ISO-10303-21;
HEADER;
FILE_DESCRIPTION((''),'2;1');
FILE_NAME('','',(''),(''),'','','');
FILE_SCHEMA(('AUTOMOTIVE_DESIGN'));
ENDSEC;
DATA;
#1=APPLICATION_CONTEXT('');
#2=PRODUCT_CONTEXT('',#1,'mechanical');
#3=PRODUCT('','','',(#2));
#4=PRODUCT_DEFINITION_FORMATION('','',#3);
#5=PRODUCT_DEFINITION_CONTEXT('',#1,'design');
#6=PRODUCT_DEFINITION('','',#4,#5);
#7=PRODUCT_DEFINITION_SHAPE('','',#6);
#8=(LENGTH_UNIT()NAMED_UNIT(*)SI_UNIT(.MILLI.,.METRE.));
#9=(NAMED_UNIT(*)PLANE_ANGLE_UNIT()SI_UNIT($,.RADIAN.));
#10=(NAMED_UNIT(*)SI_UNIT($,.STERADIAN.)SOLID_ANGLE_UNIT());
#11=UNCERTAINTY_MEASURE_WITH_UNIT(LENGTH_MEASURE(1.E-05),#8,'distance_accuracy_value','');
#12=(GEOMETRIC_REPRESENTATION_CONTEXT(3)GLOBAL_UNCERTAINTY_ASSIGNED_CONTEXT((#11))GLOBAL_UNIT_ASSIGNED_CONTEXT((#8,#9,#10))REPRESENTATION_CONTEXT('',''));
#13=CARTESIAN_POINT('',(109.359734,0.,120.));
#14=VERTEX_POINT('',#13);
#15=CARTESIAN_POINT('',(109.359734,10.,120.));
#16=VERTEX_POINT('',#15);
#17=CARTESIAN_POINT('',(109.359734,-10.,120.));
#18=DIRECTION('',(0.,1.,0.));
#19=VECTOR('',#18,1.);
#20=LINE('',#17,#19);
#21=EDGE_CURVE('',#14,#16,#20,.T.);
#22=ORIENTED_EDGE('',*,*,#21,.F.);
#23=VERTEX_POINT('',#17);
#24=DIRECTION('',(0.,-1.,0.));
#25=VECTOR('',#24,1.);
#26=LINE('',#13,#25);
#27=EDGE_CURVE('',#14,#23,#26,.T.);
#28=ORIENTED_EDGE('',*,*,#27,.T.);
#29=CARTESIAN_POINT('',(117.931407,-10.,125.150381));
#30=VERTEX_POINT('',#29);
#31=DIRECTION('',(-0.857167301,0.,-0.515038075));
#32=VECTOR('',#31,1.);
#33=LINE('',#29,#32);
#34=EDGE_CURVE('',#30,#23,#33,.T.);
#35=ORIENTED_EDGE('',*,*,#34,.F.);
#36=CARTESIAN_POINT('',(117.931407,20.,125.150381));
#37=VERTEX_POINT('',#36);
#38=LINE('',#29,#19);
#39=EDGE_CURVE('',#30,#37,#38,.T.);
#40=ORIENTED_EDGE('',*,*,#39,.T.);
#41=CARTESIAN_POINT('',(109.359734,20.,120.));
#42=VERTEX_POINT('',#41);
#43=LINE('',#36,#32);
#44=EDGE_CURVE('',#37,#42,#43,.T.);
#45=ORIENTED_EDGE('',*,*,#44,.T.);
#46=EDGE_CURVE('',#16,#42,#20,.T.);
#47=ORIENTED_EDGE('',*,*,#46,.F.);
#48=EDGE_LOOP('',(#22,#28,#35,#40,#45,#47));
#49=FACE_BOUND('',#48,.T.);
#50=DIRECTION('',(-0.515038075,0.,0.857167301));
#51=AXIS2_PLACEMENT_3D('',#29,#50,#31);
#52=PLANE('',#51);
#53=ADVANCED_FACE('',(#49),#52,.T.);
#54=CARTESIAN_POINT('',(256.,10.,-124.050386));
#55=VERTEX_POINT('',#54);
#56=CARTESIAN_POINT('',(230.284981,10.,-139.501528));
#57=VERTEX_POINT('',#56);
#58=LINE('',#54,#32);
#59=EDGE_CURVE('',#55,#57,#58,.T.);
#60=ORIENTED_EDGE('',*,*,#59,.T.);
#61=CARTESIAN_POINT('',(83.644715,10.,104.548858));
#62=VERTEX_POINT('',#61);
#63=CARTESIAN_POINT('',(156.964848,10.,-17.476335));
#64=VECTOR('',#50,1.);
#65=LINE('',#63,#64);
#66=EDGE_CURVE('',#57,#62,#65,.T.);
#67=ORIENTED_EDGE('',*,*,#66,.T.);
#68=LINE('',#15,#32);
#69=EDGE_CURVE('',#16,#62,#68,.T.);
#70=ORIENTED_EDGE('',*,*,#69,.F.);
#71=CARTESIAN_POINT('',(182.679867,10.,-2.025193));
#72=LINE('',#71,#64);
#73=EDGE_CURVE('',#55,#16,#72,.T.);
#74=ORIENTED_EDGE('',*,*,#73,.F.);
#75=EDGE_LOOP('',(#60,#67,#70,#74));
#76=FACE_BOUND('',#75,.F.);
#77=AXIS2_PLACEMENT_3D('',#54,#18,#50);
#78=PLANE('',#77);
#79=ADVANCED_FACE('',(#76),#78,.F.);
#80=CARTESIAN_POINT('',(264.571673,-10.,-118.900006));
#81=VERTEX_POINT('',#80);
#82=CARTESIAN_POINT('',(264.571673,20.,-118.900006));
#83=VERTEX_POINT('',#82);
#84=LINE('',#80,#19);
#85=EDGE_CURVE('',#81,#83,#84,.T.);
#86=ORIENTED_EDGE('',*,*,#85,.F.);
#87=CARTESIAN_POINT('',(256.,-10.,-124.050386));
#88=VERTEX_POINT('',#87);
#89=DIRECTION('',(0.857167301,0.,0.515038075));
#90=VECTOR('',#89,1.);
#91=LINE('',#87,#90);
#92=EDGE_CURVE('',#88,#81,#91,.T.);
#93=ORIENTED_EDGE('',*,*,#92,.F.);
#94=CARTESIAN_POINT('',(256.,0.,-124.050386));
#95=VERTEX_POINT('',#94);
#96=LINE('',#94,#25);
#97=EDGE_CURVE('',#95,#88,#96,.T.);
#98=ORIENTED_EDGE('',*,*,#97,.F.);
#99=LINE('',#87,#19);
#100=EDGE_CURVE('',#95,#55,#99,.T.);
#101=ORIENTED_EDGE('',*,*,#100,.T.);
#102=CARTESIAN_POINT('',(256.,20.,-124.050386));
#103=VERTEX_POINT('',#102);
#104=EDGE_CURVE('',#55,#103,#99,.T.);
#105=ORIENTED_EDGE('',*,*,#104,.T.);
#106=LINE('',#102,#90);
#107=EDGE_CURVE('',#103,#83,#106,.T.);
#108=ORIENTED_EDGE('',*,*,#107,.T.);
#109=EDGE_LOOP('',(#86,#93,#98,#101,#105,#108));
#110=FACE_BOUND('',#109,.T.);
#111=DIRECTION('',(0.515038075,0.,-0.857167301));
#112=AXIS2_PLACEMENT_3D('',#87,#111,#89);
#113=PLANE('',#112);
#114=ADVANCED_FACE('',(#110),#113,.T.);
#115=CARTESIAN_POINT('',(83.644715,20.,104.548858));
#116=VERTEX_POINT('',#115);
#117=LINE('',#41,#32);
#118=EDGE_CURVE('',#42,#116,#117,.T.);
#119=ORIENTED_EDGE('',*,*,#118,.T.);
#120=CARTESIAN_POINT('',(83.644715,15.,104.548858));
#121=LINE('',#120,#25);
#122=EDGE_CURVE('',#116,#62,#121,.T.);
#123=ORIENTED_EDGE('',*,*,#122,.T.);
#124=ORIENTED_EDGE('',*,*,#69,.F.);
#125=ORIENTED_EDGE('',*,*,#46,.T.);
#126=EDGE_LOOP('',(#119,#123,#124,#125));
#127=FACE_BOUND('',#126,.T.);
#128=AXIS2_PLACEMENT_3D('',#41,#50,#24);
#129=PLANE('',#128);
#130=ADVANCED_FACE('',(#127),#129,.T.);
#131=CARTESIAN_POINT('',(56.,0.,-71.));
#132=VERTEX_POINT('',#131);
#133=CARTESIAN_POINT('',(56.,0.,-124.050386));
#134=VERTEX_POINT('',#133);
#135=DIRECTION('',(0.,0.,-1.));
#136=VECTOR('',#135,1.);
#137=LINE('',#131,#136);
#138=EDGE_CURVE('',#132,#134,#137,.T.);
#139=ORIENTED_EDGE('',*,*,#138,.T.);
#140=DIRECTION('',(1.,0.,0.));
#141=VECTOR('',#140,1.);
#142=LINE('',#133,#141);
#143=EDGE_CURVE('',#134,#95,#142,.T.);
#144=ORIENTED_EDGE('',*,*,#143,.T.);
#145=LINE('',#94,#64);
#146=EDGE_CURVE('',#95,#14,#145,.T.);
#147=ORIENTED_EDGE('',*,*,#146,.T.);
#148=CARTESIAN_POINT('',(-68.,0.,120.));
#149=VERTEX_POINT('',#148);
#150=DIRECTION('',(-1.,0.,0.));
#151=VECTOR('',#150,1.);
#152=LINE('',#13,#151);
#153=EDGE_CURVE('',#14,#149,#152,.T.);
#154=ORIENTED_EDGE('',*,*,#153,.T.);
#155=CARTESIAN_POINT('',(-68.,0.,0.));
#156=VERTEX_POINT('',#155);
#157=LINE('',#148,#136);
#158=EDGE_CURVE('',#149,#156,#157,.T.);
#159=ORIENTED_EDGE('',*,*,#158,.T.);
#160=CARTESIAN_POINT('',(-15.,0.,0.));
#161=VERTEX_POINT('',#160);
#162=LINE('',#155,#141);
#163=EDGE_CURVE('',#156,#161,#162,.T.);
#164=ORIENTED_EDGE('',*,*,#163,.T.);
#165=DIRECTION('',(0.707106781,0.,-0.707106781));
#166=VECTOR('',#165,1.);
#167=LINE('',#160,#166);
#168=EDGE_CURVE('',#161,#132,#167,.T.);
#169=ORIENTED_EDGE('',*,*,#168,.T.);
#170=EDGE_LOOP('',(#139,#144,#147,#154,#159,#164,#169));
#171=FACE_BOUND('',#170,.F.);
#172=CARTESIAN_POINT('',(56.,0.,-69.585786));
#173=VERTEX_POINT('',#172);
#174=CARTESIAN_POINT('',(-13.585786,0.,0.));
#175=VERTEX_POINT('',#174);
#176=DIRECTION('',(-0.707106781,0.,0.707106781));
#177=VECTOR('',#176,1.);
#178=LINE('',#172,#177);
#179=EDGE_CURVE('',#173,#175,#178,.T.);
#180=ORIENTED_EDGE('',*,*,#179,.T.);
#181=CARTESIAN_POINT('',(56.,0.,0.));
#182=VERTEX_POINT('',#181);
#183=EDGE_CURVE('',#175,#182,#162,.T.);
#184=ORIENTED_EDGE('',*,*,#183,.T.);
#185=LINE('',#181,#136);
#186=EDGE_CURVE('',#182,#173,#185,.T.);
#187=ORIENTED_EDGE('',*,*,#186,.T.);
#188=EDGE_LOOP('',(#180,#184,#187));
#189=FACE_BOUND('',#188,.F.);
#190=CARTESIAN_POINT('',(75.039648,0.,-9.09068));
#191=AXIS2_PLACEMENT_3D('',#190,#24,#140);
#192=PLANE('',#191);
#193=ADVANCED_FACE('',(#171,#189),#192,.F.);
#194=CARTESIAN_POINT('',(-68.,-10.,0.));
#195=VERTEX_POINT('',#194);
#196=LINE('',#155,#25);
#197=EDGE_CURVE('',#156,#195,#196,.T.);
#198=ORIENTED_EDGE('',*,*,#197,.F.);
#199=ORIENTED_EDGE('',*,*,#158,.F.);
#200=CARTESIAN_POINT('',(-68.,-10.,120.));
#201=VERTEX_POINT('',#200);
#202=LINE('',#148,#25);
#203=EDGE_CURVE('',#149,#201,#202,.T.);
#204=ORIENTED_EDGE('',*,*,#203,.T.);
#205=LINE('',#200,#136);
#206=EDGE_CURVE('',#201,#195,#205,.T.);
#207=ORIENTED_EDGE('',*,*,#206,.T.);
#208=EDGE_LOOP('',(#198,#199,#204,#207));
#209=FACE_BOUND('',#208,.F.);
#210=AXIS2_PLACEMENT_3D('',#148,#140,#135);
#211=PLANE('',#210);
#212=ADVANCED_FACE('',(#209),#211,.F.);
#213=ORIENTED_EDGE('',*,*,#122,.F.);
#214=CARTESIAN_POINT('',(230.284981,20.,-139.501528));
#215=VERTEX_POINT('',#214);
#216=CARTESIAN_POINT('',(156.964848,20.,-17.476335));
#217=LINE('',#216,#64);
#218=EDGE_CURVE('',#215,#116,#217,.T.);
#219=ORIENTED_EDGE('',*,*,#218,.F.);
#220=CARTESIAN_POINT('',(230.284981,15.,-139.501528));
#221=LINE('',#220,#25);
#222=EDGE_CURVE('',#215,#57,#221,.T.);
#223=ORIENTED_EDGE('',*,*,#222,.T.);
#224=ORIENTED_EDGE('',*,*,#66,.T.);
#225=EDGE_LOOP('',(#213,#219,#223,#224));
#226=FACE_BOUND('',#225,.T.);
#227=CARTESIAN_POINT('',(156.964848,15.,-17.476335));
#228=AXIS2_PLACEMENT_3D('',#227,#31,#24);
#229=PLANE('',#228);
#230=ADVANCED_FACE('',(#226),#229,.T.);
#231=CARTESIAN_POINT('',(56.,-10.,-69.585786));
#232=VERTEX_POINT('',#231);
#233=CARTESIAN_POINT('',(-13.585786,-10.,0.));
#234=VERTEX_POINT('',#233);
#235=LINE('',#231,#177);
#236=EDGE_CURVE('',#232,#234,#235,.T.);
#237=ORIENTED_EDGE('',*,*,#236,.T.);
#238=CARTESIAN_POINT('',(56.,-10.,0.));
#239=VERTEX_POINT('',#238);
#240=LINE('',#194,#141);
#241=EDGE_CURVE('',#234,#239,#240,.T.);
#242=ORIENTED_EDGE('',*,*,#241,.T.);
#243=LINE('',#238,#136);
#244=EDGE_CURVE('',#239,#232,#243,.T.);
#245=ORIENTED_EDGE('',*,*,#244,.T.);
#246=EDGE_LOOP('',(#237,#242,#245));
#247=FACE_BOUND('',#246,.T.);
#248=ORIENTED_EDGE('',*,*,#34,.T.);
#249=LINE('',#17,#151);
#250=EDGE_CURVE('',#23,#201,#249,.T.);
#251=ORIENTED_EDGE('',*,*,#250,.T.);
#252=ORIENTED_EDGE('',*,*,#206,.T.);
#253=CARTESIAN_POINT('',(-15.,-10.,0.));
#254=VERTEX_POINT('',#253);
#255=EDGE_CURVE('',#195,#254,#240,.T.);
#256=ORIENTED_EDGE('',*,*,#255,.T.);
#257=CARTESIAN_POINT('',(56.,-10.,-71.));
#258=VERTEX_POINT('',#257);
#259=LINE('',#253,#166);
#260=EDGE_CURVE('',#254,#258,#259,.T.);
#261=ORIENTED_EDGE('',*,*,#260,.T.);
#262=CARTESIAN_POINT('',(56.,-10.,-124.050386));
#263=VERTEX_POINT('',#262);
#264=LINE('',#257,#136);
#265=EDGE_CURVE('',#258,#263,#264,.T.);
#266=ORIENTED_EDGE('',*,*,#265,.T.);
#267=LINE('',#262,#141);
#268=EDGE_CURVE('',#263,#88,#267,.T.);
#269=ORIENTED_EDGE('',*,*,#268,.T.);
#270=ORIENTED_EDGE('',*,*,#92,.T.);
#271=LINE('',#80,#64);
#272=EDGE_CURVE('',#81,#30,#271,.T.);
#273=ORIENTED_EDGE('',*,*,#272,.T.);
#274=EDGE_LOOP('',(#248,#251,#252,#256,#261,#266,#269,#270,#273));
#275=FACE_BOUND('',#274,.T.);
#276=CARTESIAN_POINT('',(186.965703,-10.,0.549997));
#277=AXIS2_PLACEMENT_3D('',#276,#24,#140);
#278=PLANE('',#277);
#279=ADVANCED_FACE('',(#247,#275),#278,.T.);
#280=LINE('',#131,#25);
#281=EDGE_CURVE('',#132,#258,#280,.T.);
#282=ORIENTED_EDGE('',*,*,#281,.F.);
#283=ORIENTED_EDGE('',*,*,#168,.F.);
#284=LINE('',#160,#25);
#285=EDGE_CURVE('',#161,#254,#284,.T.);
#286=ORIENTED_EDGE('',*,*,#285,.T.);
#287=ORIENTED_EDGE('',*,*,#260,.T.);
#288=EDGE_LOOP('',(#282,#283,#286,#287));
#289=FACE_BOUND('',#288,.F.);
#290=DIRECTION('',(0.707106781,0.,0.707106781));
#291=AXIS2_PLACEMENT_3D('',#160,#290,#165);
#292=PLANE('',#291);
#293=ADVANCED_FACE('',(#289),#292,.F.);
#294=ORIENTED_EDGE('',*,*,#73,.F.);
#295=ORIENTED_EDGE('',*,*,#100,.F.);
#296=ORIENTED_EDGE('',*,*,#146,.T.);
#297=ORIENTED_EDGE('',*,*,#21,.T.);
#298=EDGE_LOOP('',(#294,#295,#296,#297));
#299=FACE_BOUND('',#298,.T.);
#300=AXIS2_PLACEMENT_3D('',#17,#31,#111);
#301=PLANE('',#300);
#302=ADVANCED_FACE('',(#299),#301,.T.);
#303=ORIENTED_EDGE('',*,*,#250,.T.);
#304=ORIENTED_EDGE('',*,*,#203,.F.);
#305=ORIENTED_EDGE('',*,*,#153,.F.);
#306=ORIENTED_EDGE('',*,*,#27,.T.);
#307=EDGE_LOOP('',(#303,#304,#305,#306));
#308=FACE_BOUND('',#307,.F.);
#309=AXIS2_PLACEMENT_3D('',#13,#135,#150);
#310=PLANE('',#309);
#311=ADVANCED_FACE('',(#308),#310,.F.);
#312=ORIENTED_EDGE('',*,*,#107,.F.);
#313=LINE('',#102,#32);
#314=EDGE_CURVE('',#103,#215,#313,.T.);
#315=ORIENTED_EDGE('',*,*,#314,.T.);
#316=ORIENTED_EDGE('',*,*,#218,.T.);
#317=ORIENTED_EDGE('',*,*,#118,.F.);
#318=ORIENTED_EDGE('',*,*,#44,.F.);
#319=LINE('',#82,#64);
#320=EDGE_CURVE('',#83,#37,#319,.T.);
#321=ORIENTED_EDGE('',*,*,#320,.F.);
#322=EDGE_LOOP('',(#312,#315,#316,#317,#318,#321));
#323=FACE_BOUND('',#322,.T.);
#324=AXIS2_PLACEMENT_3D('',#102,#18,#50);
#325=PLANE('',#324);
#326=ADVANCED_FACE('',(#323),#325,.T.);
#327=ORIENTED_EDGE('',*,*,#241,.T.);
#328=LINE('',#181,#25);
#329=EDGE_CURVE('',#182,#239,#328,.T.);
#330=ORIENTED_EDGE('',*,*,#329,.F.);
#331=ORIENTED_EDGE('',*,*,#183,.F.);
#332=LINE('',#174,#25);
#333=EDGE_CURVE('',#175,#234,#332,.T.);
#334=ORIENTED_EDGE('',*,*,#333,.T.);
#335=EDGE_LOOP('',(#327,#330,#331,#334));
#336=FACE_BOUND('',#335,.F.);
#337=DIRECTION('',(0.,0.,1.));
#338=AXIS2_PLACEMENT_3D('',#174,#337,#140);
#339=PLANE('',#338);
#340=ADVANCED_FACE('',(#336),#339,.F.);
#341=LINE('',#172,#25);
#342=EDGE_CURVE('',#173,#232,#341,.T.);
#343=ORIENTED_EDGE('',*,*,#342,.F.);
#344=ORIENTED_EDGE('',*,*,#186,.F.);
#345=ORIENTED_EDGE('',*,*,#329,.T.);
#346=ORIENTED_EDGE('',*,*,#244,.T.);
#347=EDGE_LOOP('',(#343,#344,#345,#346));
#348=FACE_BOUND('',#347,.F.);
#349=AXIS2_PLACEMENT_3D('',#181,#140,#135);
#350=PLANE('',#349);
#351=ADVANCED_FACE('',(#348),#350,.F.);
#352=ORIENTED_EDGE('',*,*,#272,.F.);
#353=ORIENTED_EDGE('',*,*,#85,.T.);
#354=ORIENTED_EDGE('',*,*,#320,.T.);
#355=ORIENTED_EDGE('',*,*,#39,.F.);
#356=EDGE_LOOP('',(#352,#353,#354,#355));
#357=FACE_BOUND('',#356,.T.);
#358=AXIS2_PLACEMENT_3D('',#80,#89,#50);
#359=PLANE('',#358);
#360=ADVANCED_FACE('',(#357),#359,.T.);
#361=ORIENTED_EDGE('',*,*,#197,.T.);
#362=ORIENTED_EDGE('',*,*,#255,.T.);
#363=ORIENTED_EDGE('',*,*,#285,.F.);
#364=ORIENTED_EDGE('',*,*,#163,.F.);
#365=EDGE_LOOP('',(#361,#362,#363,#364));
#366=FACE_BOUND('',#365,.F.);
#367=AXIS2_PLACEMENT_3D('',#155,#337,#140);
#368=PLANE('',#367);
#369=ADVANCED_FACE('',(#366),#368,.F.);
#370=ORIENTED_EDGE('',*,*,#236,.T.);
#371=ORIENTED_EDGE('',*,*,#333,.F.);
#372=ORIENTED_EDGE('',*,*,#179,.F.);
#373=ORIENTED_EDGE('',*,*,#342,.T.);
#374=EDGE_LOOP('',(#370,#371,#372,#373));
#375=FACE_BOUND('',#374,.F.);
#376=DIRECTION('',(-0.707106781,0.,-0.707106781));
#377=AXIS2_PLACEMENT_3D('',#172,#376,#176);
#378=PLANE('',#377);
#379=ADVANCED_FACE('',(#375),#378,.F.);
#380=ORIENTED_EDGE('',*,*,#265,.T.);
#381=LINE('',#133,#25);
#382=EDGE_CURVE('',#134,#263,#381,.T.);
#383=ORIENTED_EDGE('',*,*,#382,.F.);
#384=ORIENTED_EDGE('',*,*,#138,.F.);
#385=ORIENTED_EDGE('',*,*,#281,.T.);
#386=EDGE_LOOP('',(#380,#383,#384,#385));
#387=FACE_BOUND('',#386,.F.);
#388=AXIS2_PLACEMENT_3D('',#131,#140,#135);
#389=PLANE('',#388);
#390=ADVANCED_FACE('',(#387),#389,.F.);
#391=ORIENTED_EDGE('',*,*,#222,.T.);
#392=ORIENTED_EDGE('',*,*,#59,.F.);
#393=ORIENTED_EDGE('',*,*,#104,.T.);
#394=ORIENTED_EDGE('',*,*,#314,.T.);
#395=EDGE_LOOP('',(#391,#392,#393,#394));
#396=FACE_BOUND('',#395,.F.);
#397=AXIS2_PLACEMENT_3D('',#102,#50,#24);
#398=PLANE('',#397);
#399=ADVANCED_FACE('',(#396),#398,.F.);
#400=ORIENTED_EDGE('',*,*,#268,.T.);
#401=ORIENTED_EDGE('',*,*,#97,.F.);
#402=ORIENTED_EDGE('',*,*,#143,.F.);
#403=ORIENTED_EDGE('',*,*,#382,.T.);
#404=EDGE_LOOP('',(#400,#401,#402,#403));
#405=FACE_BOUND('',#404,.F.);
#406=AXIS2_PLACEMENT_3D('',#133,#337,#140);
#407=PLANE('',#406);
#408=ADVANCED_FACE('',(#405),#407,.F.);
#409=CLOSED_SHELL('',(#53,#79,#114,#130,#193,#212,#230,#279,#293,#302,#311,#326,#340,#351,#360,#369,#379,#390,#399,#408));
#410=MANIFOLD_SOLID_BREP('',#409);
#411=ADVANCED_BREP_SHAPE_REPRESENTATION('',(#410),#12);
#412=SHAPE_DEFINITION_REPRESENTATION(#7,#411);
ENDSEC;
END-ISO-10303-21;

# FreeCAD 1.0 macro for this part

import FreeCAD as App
import Part
import Sketcher
Q = App.Units.Quantity

doc = App.newDocument("Part")
body = doc.addObject("PartDesign::Body", "Body")

# Sketch on XZ plane
sketch1 = doc.addObject("Sketcher::SketchObject", "Sketch")
body.addObject(sketch1)
sketch1.AttachmentSupport = (doc.XZ_Plane, [""])
sketch1.MapMode = "FlatFace"
sketch1.addGeometry([
    Part.LineSegment(App.Vector(-15, 0, 0), App.Vector(56, -71, 0)),  # 0
    Part.LineSegment(App.Vector(56, -71, 0), App.Vector(56, -124, 0)),  # 1
    Part.LineSegment(App.Vector(56, -124, 0), App.Vector(256, -124, 0)),  # 2
    Part.LineSegment(App.Vector(256, -124, 0), App.Vector(109, 120, 0)),  # 3
    Part.LineSegment(App.Vector(109, 120, 0), App.Vector(-68, 120, 0)),  # 4
    Part.LineSegment(App.Vector(-68, 120, 0), App.Vector(-68, 0, 0)),  # 5
    Part.LineSegment(App.Vector(-68, 0, 0), App.Vector(-15, 0, 0)),  # 6
    Part.LineSegment(App.Vector(56, -70, 0), App.Vector(-14, 0, 0)),  # 7
    Part.LineSegment(App.Vector(-14, 0, 0), App.Vector(56, 0, 0)),  # 8
    Part.LineSegment(App.Vector(56, 0, 0), App.Vector(56, -70, 0)),  # 9
], False)
sketch1.addConstraint([
    Sketcher.Constraint("Coincident", 0, 2, 1, 1),
    Sketcher.Constraint("Coincident", 1, 2, 2, 1),
    Sketcher.Constraint("Coincident", 2, 2, 3, 1),
    Sketcher.Constraint("Coincident", 3, 2, 4, 1),
    Sketcher.Constraint("Coincident", 4, 2, 5, 1),
    Sketcher.Constraint("Coincident", 5, 2, 6, 1),
    Sketcher.Constraint("Coincident", 6, 2, 0, 1),
    Sketcher.Constraint("Coincident", 7, 2, 8, 1),
    Sketcher.Constraint("Coincident", 8, 2, 9, 1),
    Sketcher.Constraint("Coincident", 9, 2, 7, 1),
    Sketcher.Constraint("Vertical", 1),
    Sketcher.Constraint("Horizontal", 2),
    Sketcher.Constraint("Horizontal", 4),
    Sketcher.Constraint("Vertical", 5),
    Sketcher.Constraint("Horizontal", 6),
    Sketcher.Constraint("Horizontal", 8),
    Sketcher.Constraint("Vertical", 9),
    Sketcher.Constraint("PointOnObject", 5, 2, -1),
    Sketcher.Constraint("PointOnObject", 7, 2, -1),
    Sketcher.Constraint("Parallel", 0, 7),
    Sketcher.Constraint("Vertical", 1, 2, 8, 2),
    Sketcher.Constraint("Equal", 8, 9),
    Sketcher.Constraint("DistanceX", 2, 1, 2, 2, 200.0),
    Sketcher.Constraint("DistanceX", 6, 1, 6, 2, 53.0),
    Sketcher.Constraint("DistanceY", 5, 2, 5, 1, 120.0),
    Sketcher.Constraint("Angle", 3, Q("121 deg")),
    Sketcher.Constraint("DistanceX", -1, 1, 0, 2, 56.0),
    Sketcher.Constraint("DistanceY", 0, 2, -1, 1, 71.0),
    Sketcher.Constraint("DistanceY", 1, 2, 9, 2, 54.4646),
    Sketcher.Constraint("Distance", 3, 284.717331),
])
pad1 = doc.addObject("PartDesign::Pad", "Pad")
body.addObject(pad1)
pad1.Profile = sketch1
pad1.Length = 10

# Sketch on XZ plane
sketch2 = doc.addObject("Sketcher::SketchObject", "Sketch001")
body.addObject(sketch2)
sketch2.AttachmentSupport = (doc.XZ_Plane, [""])
sketch2.MapMode = "FlatFace"
sketch2.AttachmentOffset = App.Placement(App.Vector(0, 0, 10), App.Rotation())
sketch2.addGeometry([
    Part.LineSegment(App.Vector(118, 125, 0), App.Vector(109, 120, 0)),
    Part.LineSegment(App.Vector(109, 120, 0), App.Vector(256, -124, 0)),
    Part.LineSegment(App.Vector(256, -124, 0), App.Vector(265, -119, 0)),
    Part.LineSegment(App.Vector(265, -119, 0), App.Vector(118, 125, 0)),
], False)
sketch2.addConstraint([
    Sketcher.Constraint("Coincident", 0, 2, 1, 1),
    Sketcher.Constraint("Coincident", 1, 2, 2, 1),
    Sketcher.Constraint("Coincident", 2, 2, 3, 1),
    Sketcher.Constraint("Coincident", 3, 2, 0, 1),
    Sketcher.Constraint("Perpendicular", 0, 1),
    Sketcher.Constraint("Perpendicular", 1, 2),
    Sketcher.Constraint("Perpendicular", 2, 3),
    Sketcher.Constraint("Angle", 0, Q("-149 deg")),
    Sketcher.Constraint("Distance", 0, 10.0),
    Sketcher.Constraint("DistanceY", -1, 1, 0, 2, 120.0),
    Sketcher.Constraint("DistanceX", -1, 1, 1, 2, 256.0),
    Sketcher.Constraint("Distance", 1, 284.717331),
])
pad2 = doc.addObject("PartDesign::Pad", "Pad001")
body.addObject(pad2)
pad2.Profile = sketch2
pad2.Length = 30
pad2.Reversed = True

# Sketch on an angled plane
sketch3 = doc.addObject("Sketcher::SketchObject", "Sketch002")
body.addObject(sketch3)
sketch3.Placement = App.Placement(App.Vector(133.327365, 0, 80.111163), App.Rotation(App.Vector(0, -1, 0), App.Vector(-0.515038075, 0, 0.857167301), App.Vector(-0.857167301, 0, -0.515038075), "ZXY"))
sketch3.addGeometry([
    Part.LineSegment(App.Vector(-20, 47, 0), App.Vector(-20, -238, 0)),
    Part.LineSegment(App.Vector(-20, -238, 0), App.Vector(-10, -238, 0)),
    Part.LineSegment(App.Vector(-10, -238, 0), App.Vector(-10, 47, 0)),
    Part.LineSegment(App.Vector(-10, 47, 0), App.Vector(-20, 47, 0)),
], False)
sketch3.addConstraint([
    Sketcher.Constraint("Coincident", 0, 2, 1, 1),
    Sketcher.Constraint("Coincident", 1, 2, 2, 1),
    Sketcher.Constraint("Coincident", 2, 2, 3, 1),
    Sketcher.Constraint("Coincident", 3, 2, 0, 1),
    Sketcher.Constraint("Vertical", 0),
    Sketcher.Constraint("Horizontal", 1),
    Sketcher.Constraint("Vertical", 2),
    Sketcher.Constraint("Horizontal", 3),
    Sketcher.Constraint("DistanceX", 1, 1, 1, 2, 10.0),
    Sketcher.Constraint("DistanceX", 0, 2, -1, 1, 20.0),
    Sketcher.Constraint("DistanceY", 0, 2, 0, 1, 284.717331),
    Sketcher.Constraint("DistanceY", -1, 1, 2, 2, 46.535649),
])
pad3 = doc.addObject("PartDesign::Pad", "Pad002")
body.addObject(pad3)
pad3.Profile = sketch3
pad3.Length = 30

doc.recompute()
